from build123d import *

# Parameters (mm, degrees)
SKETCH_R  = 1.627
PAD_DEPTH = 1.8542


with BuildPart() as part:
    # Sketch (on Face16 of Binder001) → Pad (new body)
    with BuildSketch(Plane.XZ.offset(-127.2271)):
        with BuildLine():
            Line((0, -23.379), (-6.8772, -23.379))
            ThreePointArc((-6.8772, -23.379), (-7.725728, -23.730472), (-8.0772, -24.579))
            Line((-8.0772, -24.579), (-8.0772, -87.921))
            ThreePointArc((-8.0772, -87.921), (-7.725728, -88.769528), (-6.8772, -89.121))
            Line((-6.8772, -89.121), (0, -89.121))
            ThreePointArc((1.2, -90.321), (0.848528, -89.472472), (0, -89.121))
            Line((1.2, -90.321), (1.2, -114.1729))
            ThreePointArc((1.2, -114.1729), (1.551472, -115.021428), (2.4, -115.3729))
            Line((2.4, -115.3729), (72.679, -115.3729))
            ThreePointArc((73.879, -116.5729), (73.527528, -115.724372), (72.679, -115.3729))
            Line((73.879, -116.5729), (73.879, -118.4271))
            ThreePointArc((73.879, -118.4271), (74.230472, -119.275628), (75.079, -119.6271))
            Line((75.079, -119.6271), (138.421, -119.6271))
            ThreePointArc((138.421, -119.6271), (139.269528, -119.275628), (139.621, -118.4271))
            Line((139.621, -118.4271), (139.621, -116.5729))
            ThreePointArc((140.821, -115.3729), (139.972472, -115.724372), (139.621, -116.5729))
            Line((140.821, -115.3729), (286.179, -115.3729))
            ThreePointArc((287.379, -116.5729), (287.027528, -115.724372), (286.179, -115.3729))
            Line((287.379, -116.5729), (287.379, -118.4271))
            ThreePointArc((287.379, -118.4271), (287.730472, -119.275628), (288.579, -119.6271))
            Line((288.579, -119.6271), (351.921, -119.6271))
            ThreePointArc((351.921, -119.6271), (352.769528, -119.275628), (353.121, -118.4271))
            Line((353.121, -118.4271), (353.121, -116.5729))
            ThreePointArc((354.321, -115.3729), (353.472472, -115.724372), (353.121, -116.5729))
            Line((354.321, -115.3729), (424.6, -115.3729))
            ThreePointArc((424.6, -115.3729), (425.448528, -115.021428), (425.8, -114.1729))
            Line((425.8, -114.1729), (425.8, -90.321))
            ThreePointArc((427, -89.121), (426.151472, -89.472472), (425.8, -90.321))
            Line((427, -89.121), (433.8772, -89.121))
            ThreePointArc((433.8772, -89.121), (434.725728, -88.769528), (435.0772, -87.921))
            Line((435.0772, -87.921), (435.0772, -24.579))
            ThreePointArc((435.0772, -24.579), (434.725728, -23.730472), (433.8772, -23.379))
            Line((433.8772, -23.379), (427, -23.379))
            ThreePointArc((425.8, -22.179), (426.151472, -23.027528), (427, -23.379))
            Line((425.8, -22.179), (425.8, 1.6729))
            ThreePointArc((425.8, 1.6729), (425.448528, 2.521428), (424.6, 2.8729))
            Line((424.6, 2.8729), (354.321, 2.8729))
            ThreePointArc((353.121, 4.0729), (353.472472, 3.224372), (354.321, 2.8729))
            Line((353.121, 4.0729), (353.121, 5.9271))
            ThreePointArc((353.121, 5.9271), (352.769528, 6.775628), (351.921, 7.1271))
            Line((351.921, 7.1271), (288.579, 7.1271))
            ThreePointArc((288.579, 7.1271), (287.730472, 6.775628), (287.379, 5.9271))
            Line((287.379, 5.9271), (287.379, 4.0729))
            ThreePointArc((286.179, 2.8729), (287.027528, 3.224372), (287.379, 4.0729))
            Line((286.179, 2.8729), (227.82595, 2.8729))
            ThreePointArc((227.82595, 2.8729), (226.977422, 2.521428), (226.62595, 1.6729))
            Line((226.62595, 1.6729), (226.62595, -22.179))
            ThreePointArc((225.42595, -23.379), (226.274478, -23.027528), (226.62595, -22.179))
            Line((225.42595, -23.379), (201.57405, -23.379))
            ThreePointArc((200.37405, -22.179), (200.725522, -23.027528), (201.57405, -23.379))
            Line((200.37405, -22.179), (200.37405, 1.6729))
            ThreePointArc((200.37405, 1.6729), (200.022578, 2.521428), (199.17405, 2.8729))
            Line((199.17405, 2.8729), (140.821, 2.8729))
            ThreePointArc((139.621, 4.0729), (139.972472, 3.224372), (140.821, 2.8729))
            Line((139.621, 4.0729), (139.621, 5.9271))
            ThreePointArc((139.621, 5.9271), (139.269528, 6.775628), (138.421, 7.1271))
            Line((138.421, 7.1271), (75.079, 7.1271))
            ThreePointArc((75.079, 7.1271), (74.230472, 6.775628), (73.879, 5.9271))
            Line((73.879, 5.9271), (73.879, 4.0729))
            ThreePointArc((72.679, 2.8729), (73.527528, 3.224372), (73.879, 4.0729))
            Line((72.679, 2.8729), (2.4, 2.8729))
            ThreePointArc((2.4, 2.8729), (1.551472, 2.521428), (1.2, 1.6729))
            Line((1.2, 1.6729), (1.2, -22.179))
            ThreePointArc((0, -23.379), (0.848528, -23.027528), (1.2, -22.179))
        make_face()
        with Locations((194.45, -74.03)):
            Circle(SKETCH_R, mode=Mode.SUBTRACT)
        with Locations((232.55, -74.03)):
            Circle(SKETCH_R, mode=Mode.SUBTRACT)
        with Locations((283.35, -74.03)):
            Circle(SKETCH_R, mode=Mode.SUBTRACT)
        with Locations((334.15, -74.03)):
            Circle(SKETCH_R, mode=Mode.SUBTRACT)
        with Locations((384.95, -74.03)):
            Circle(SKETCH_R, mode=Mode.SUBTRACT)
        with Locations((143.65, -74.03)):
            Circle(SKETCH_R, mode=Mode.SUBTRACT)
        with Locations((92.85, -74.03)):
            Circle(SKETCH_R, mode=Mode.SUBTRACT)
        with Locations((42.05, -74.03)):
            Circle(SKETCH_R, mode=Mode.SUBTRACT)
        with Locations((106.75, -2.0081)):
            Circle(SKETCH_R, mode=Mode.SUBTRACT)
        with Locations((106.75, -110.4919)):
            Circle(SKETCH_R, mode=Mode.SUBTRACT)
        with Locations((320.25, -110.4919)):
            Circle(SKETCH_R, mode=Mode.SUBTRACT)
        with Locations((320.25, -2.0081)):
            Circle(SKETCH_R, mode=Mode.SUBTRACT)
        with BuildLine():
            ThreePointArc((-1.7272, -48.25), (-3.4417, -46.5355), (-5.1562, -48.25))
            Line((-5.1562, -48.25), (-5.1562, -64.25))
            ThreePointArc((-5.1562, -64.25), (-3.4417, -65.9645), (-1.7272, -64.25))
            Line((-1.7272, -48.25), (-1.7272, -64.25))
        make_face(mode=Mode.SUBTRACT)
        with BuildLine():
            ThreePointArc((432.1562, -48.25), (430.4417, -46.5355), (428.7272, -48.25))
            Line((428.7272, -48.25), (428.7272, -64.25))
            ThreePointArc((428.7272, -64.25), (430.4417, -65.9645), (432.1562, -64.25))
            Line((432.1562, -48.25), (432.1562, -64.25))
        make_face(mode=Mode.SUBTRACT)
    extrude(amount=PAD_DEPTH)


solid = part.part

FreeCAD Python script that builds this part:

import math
import FreeCAD as App
import Part
import Sketcher

V = App.Vector
Q = App.Units.Quantity

doc = App.newDocument("Part")
body = doc.addObject("PartDesign::Body", "Body")

# Sketch on XZ plane
sketch1 = body.newObject("Sketcher::SketchObject", "Sketch")
sketch1.AttachmentSupport = (doc.getObject("XZ_Plane"), [""])
sketch1.MapMode = "FlatFace"
sketch1.AttachmentOffset = App.Placement(V(0, 0, -127.2271), App.Rotation())
sketch1.addGeometry([
    Part.LineSegment(V(0, -23.379, 0), V(-6.8772, -23.379, 0)),  # 0
    Part.ArcOfCircle(Part.Circle(V(-6.8772, -24.579, 0), V(0, 0, 1), 1.2), math.radians(90.000022), math.radians(179.999978)),  # 1
    Part.LineSegment(V(-8.0772, -24.579, 0), V(-8.0772, -87.921, 0)),  # 2
    Part.ArcOfCircle(Part.Circle(V(-6.8772, -87.921, 0), V(0, 0, 1), 1.2), math.radians(-179.999978), math.radians(-90.000022)),  # 3
    Part.LineSegment(V(-6.8772, -89.121, 0), V(0, -89.121, 0)),  # 4
    Part.ArcOfCircle(Part.Circle(V(0, -90.321, 0), V(0, 0, 1), 1.2), math.radians(0.000022), math.radians(89.999978)),  # 5
    Part.LineSegment(V(1.2, -90.321, 0), V(1.2, -114.1729, 0)),  # 6
    Part.ArcOfCircle(Part.Circle(V(2.4, -114.1729, 0), V(0, 0, 1), 1.2), math.radians(-179.999978), math.radians(-90.000022)),  # 7
    Part.LineSegment(V(2.4, -115.3729, 0), V(72.679, -115.3729, 0)),  # 8
    Part.ArcOfCircle(Part.Circle(V(72.679, -116.5729, 0), V(0, 0, 1), 1.2), math.radians(0.000022), math.radians(89.999978)),  # 9
    Part.LineSegment(V(73.879, -116.5729, 0), V(73.879, -118.4271, 0)),  # 10
    Part.ArcOfCircle(Part.Circle(V(75.079, -118.4271, 0), V(0, 0, 1), 1.2), math.radians(-179.999978), math.radians(-90.000022)),  # 11
    Part.LineSegment(V(75.079, -119.6271, 0), V(138.421, -119.6271, 0)),  # 12
    Part.ArcOfCircle(Part.Circle(V(138.421, -118.4271, 0), V(0, 0, 1), 1.2), math.radians(-89.999978), math.radians(-0.000022)),  # 13
    Part.LineSegment(V(139.621, -118.4271, 0), V(139.621, -116.5729, 0)),  # 14
    Part.ArcOfCircle(Part.Circle(V(140.821, -116.5729, 0), V(0, 0, 1), 1.2), math.radians(90.000022), math.radians(179.999978)),  # 15
    Part.LineSegment(V(140.821, -115.3729, 0), V(286.179, -115.3729, 0)),  # 16
    Part.ArcOfCircle(Part.Circle(V(286.179, -116.5729, 0), V(0, 0, 1), 1.2), math.radians(0.000022), math.radians(89.999978)),  # 17
    Part.LineSegment(V(287.379, -116.5729, 0), V(287.379, -118.4271, 0)),  # 18
    Part.ArcOfCircle(Part.Circle(V(288.579, -118.4271, 0), V(0, 0, 1), 1.2), math.radians(-179.999978), math.radians(-90.000022)),  # 19
    Part.LineSegment(V(288.579, -119.6271, 0), V(351.921, -119.6271, 0)),  # 20
    Part.ArcOfCircle(Part.Circle(V(351.921, -118.4271, 0), V(0, 0, 1), 1.2), math.radians(-89.999978), math.radians(-0.000022)),  # 21
    Part.LineSegment(V(353.121, -118.4271, 0), V(353.121, -116.5729, 0)),  # 22
    Part.ArcOfCircle(Part.Circle(V(354.321, -116.5729, 0), V(0, 0, 1), 1.2), math.radians(90.000022), math.radians(179.999978)),  # 23
    Part.LineSegment(V(354.321, -115.3729, 0), V(424.6, -115.3729, 0)),  # 24
    Part.ArcOfCircle(Part.Circle(V(424.6, -114.1729, 0), V(0, 0, 1), 1.2), math.radians(-89.999978), math.radians(-0.000022)),  # 25
    Part.LineSegment(V(425.8, -114.1729, 0), V(425.8, -90.321, 0)),  # 26
    Part.ArcOfCircle(Part.Circle(V(427, -90.321, 0), V(0, 0, 1), 1.2), math.radians(90.000022), math.radians(179.999978)),  # 27
    Part.LineSegment(V(427, -89.121, 0), V(433.8772, -89.121, 0)),  # 28
    Part.ArcOfCircle(Part.Circle(V(433.8772, -87.921, 0), V(0, 0, 1), 1.2), math.radians(-89.999978), math.radians(-0.000022)),  # 29
    Part.LineSegment(V(435.0772, -87.921, 0), V(435.0772, -24.579, 0)),  # 30
    Part.ArcOfCircle(Part.Circle(V(433.8772, -24.579, 0), V(0, 0, 1), 1.2), math.radians(0.000022), math.radians(89.999978)),  # 31
    Part.LineSegment(V(433.8772, -23.379, 0), V(427, -23.379, 0)),  # 32
    Part.ArcOfCircle(Part.Circle(V(427, -22.179, 0), V(0, 0, 1), 1.2), math.radians(-179.999978), math.radians(-90.000022)),  # 33
    Part.LineSegment(V(425.8, -22.179, 0), V(425.8, 1.6729, 0)),  # 34
    Part.ArcOfCircle(Part.Circle(V(424.6, 1.6729, 0), V(0, 0, 1), 1.2), math.radians(0.000022), math.radians(89.999978)),  # 35
    Part.LineSegment(V(424.6, 2.8729, 0), V(354.321, 2.8729, 0)),  # 36
    Part.ArcOfCircle(Part.Circle(V(354.321, 4.0729, 0), V(0, 0, 1), 1.2), math.radians(-179.999978), math.radians(-90.000022)),  # 37
    Part.LineSegment(V(353.121, 4.0729, 0), V(353.121, 5.9271, 0)),  # 38
    Part.ArcOfCircle(Part.Circle(V(351.921, 5.9271, 0), V(0, 0, 1), 1.2), math.radians(0.000022), math.radians(89.999978)),  # 39
    Part.LineSegment(V(351.921, 7.1271, 0), V(288.579, 7.1271, 0)),  # 40
    Part.ArcOfCircle(Part.Circle(V(288.579, 5.9271, 0), V(0, 0, 1), 1.2), math.radians(90.000022), math.radians(179.999978)),  # 41
    Part.LineSegment(V(287.379, 5.9271, 0), V(287.379, 4.0729, 0)),  # 42
    Part.ArcOfCircle(Part.Circle(V(286.179, 4.0729, 0), V(0, 0, 1), 1.2), math.radians(-89.999978), math.radians(-0.000022)),  # 43
    Part.LineSegment(V(286.179, 2.8729, 0), V(227.82595, 2.8729, 0)),  # 44
    Part.ArcOfCircle(Part.Circle(V(227.82595, 1.6729, 0), V(0, 0, 1), 1.2), math.radians(90.000022), math.radians(179.999978)),  # 45
    Part.LineSegment(V(226.62595, 1.6729, 0), V(226.62595, -22.179, 0)),  # 46
    Part.ArcOfCircle(Part.Circle(V(225.42595, -22.179, 0), V(0, 0, 1), 1.2), math.radians(-89.999978), math.radians(-0.000022)),  # 47
    Part.LineSegment(V(225.42595, -23.379, 0), V(201.57405, -23.379, 0)),  # 48
    Part.ArcOfCircle(Part.Circle(V(201.57405, -22.179, 0), V(0, 0, 1), 1.2), math.radians(-179.999978), math.radians(-90.000022)),  # 49
    Part.LineSegment(V(200.37405, -22.179, 0), V(200.37405, 1.6729, 0)),  # 50
    Part.ArcOfCircle(Part.Circle(V(199.17405, 1.6729, 0), V(0, 0, 1), 1.2), math.radians(0.000022), math.radians(89.999978)),  # 51
    Part.LineSegment(V(199.17405, 2.8729, 0), V(140.821, 2.8729, 0)),  # 52
    Part.ArcOfCircle(Part.Circle(V(140.821, 4.0729, 0), V(0, 0, 1), 1.2), math.radians(-179.999978), math.radians(-90.000022)),  # 53
    Part.LineSegment(V(139.621, 4.0729, 0), V(139.621, 5.9271, 0)),  # 54
    Part.ArcOfCircle(Part.Circle(V(138.421, 5.9271, 0), V(0, 0, 1), 1.2), math.radians(0.000022), math.radians(89.999978)),  # 55
    Part.LineSegment(V(138.421, 7.1271, 0), V(75.079, 7.1271, 0)),  # 56
    Part.ArcOfCircle(Part.Circle(V(75.079, 5.9271, 0), V(0, 0, 1), 1.2), math.radians(90.000022), math.radians(179.999978)),  # 57
    Part.LineSegment(V(73.879, 5.9271, 0), V(73.879, 4.0729, 0)),  # 58
    Part.ArcOfCircle(Part.Circle(V(72.679, 4.0729, 0), V(0, 0, 1), 1.2), math.radians(-89.999978), math.radians(-0.000022)),  # 59
    Part.LineSegment(V(72.679, 2.8729, 0), V(2.4, 2.8729, 0)),  # 60
    Part.ArcOfCircle(Part.Circle(V(2.4, 1.6729, 0), V(0, 0, 1), 1.2), math.radians(90.000022), math.radians(179.999978)),  # 61
    Part.LineSegment(V(1.2, 1.6729, 0), V(1.2, -22.179, 0)),  # 62
    Part.ArcOfCircle(Part.Circle(V(0, -22.179, 0), V(0, 0, 1), 1.2), math.radians(-89.999978), math.radians(-0.000022)),  # 63
    Part.Circle(V(106.75, -110.4919, 0), V(0, 0, 1), 1.627),  # 64
    Part.Circle(V(42.05, -74.03, 0), V(0, 0, 1), 1.627),  # 65
    Part.Circle(V(92.85, -74.03, 0), V(0, 0, 1), 1.627),  # 66
    Part.Circle(V(143.65, -74.03, 0), V(0, 0, 1), 1.627),  # 67
    Part.Circle(V(194.45, -74.03, 0), V(0, 0, 1), 1.627),  # 68
    Part.Circle(V(320.25, -110.4919, 0), V(0, 0, 1), 1.627),  # 69
    Part.Circle(V(232.55, -74.03, 0), V(0, 0, 1), 1.627),  # 70
    Part.Circle(V(283.35, -74.03, 0), V(0, 0, 1), 1.627),  # 71
    Part.Circle(V(334.15, -74.03, 0), V(0, 0, 1), 1.627),  # 72
    Part.Circle(V(384.95, -74.03, 0), V(0, 0, 1), 1.627),  # 73
    Part.ArcOfCircle(Part.Circle(V(-3.4417, -48.25, 0), V(0, 0, 1), 1.7145), math.radians(0), math.radians(180)),  # 74
    Part.LineSegment(V(-1.7272, -48.25, 0), V(-1.7272, -64.25, 0)),  # 75
    Part.ArcOfCircle(Part.Circle(V(-3.4417, -64.25, 0), V(0, 0, 1), 1.7145), math.radians(180), math.radians(360)),  # 76
    Part.LineSegment(V(-5.1562, -64.25, 0), V(-5.1562, -48.25, 0)),  # 77
    Part.Circle(V(106.75, -2.0081, 0), V(0, 0, 1), 1.627),  # 78
    Part.ArcOfCircle(Part.Circle(V(430.4417, -48.25, 0), V(0, 0, 1), 1.7145), math.radians(0), math.radians(180)),  # 79
    Part.LineSegment(V(432.1562, -48.25, 0), V(432.1562, -64.25, 0)),  # 80
    Part.ArcOfCircle(Part.Circle(V(430.4417, -64.25, 0), V(0, 0, 1), 1.7145), math.radians(180), math.radians(360)),  # 81
    Part.LineSegment(V(428.7272, -64.25, 0), V(428.7272, -48.25, 0)),  # 82
    Part.Circle(V(320.25, -2.0081, 0), V(0, 0, 1), 1.627),  # 83
], False)
sketch1.addConstraint([
    Sketcher.Constraint("Tangent", 0, 2, 1, 1),
    Sketcher.Constraint("Tangent", 1, 2, 2, 1),
    Sketcher.Constraint("Tangent", 2, 2, 3, 1),
    Sketcher.Constraint("Tangent", 3, 2, 4, 1),
    Sketcher.Constraint("Tangent", 4, 2, 5, 2),
    Sketcher.Constraint("Tangent", 5, 1, 6, 1),
    Sketcher.Constraint("Tangent", 6, 2, 7, 1),
    Sketcher.Constraint("Tangent", 7, 2, 8, 1),
    Sketcher.Constraint("Tangent", 8, 2, 9, 2),
    Sketcher.Constraint("Tangent", 9, 1, 10, 1),
    Sketcher.Constraint("Tangent", 10, 2, 11, 1),
    Sketcher.Constraint("Tangent", 11, 2, 12, 1),
    Sketcher.Constraint("Tangent", 12, 2, 13, 1),
    Sketcher.Constraint("Tangent", 13, 2, 14, 1),
    Sketcher.Constraint("Tangent", 14, 2, 15, 2),
    Sketcher.Constraint("Tangent", 15, 1, 16, 1),
    Sketcher.Constraint("Tangent", 16, 2, 17, 2),
    Sketcher.Constraint("Tangent", 17, 1, 18, 1),
    Sketcher.Constraint("Tangent", 18, 2, 19, 1),
    Sketcher.Constraint("Tangent", 19, 2, 20, 1),
    Sketcher.Constraint("Tangent", 20, 2, 21, 1),
    Sketcher.Constraint("Tangent", 21, 2, 22, 1),
    Sketcher.Constraint("Tangent", 22, 2, 23, 2),
    Sketcher.Constraint("Tangent", 23, 1, 24, 1),
    Sketcher.Constraint("Tangent", 24, 2, 25, 1),
    Sketcher.Constraint("Tangent", 25, 2, 26, 1),
    Sketcher.Constraint("Tangent", 26, 2, 27, 2),
    Sketcher.Constraint("Tangent", 27, 1, 28, 1),
    Sketcher.Constraint("Tangent", 28, 2, 29, 1),
    Sketcher.Constraint("Tangent", 29, 2, 30, 1),
    Sketcher.Constraint("Tangent", 30, 2, 31, 1),
    Sketcher.Constraint("Tangent", 31, 2, 32, 1),
    Sketcher.Constraint("Tangent", 32, 2, 33, 2),
    Sketcher.Constraint("Tangent", 33, 1, 34, 1),
    Sketcher.Constraint("Tangent", 34, 2, 35, 1),
    Sketcher.Constraint("Tangent", 35, 2, 36, 1),
    Sketcher.Constraint("Tangent", 36, 2, 37, 2),
    Sketcher.Constraint("Tangent", 37, 1, 38, 1),
    Sketcher.Constraint("Tangent", 38, 2, 39, 1),
    Sketcher.Constraint("Tangent", 39, 2, 40, 1),
    Sketcher.Constraint("Tangent", 40, 2, 41, 1),
    Sketcher.Constraint("Tangent", 41, 2, 42, 1),
    Sketcher.Constraint("Tangent", 42, 2, 43, 2),
    Sketcher.Constraint("Tangent", 43, 1, 44, 1),
    Sketcher.Constraint("Tangent", 44, 2, 45, 1),
    Sketcher.Constraint("Tangent", 45, 2, 46, 1),
    Sketcher.Constraint("Tangent", 46, 2, 47, 2),
    Sketcher.Constraint("Tangent", 47, 1, 48, 1),
    Sketcher.Constraint("Tangent", 48, 2, 49, 2),
    Sketcher.Constraint("Tangent", 49, 1, 50, 1),
    Sketcher.Constraint("Tangent", 50, 2, 51, 1),
    Sketcher.Constraint("Tangent", 51, 2, 52, 1),
    Sketcher.Constraint("Tangent", 52, 2, 53, 2),
    Sketcher.Constraint("Tangent", 53, 1, 54, 1),
    Sketcher.Constraint("Tangent", 54, 2, 55, 1),
    Sketcher.Constraint("Tangent", 55, 2, 56, 1),
    Sketcher.Constraint("Tangent", 56, 2, 57, 1),
    Sketcher.Constraint("Tangent", 57, 2, 58, 1),
    Sketcher.Constraint("Tangent", 58, 2, 59, 2),
    Sketcher.Constraint("Tangent", 59, 1, 60, 1),
    Sketcher.Constraint("Tangent", 60, 2, 61, 1),
    Sketcher.Constraint("Tangent", 61, 2, 62, 1),
    Sketcher.Constraint("Tangent", 62, 2, 63, 2),
    Sketcher.Constraint("Tangent", 63, 1, 0, 1),
    Sketcher.Constraint("Tangent", 74, 1, 75, 1),
    Sketcher.Constraint("Tangent", 75, 2, 76, 2),
    Sketcher.Constraint("Tangent", 76, 1, 77, 1),
    Sketcher.Constraint("Tangent", 77, 2, 74, 2),
    Sketcher.Constraint("Tangent", 79, 1, 80, 1),
    Sketcher.Constraint("Tangent", 80, 2, 81, 2),
    Sketcher.Constraint("Tangent", 81, 1, 82, 1),
    Sketcher.Constraint("Tangent", 82, 2, 79, 2),
    Sketcher.Constraint("Horizontal", 0),
    Sketcher.Constraint("Vertical", 2),
    Sketcher.Constraint("Horizontal", 4),
    Sketcher.Constraint("Vertical", 6),
    Sketcher.Constraint("Horizontal", 8),
    Sketcher.Constraint("Vertical", 10),
    Sketcher.Constraint("Horizontal", 12),
    Sketcher.Constraint("Vertical", 14),
    Sketcher.Constraint("Horizontal", 16),
    Sketcher.Constraint("Vertical", 18),
    Sketcher.Constraint("Horizontal", 20),
    Sketcher.Constraint("Vertical", 22),
    Sketcher.Constraint("Horizontal", 24),
    Sketcher.Constraint("Vertical", 26),
    Sketcher.Constraint("Horizontal", 28),
    Sketcher.Constraint("Vertical", 30),
    Sketcher.Constraint("Horizontal", 32),
    Sketcher.Constraint("Vertical", 34),
    Sketcher.Constraint("Horizontal", 36),
    Sketcher.Constraint("Vertical", 38),
    Sketcher.Constraint("Horizontal", 40),
    Sketcher.Constraint("Vertical", 42),
    Sketcher.Constraint("Horizontal", 44),
    Sketcher.Constraint("Vertical", 46),
    Sketcher.Constraint("Horizontal", 48),
    Sketcher.Constraint("Vertical", 50),
    Sketcher.Constraint("Horizontal", 52),
    Sketcher.Constraint("Vertical", 54),
    Sketcher.Constraint("Horizontal", 56),
    Sketcher.Constraint("Vertical", 58),
    Sketcher.Constraint("Horizontal", 60),
    Sketcher.Constraint("Vertical", 62),
    Sketcher.Constraint("Vertical", 75),
    Sketcher.Constraint("Vertical", 77),
    Sketcher.Constraint("Vertical", 80),
    Sketcher.Constraint("Vertical", 82),
    Sketcher.Constraint("Equal", 1, 3),
    Sketcher.Constraint("Equal", 3, 5),
    Sketcher.Constraint("Equal", 5, 7),
    Sketcher.Constraint("Equal", 7, 9),
    Sketcher.Constraint("Equal", 9, 11),
    Sketcher.Constraint("Equal", 11, 13),
    Sketcher.Constraint("Equal", 13, 15),
    Sketcher.Constraint("Equal", 15, 17),
    Sketcher.Constraint("Equal", 17, 19),
    Sketcher.Constraint("Equal", 19, 21),
    Sketcher.Constraint("Equal", 21, 23),
    Sketcher.Constraint("Equal", 23, 25),
    Sketcher.Constraint("Equal", 25, 27),
    Sketcher.Constraint("Equal", 27, 29),
    Sketcher.Constraint("Equal", 29, 31),
    Sketcher.Constraint("Equal", 31, 33),
    Sketcher.Constraint("Equal", 33, 35),
    Sketcher.Constraint("Equal", 35, 37),
    Sketcher.Constraint("Equal", 37, 39),
    Sketcher.Constraint("Equal", 39, 41),
    Sketcher.Constraint("Equal", 41, 43),
    Sketcher.Constraint("Equal", 43, 45),
    Sketcher.Constraint("Equal", 45, 47),
    Sketcher.Constraint("Equal", 47, 49),
    Sketcher.Constraint("Equal", 49, 51),
    Sketcher.Constraint("Equal", 51, 53),
    Sketcher.Constraint("Equal", 53, 55),
    Sketcher.Constraint("Equal", 55, 57),
    Sketcher.Constraint("Equal", 57, 59),
    Sketcher.Constraint("Equal", 59, 61),
    Sketcher.Constraint("Equal", 61, 63),
    Sketcher.Constraint("Equal", 64, 65),
    Sketcher.Constraint("Equal", 65, 66),
    Sketcher.Constraint("Equal", 66, 67),
    Sketcher.Constraint("Equal", 67, 68),
    Sketcher.Constraint("Equal", 68, 69),
    Sketcher.Constraint("Equal", 69, 70),
    Sketcher.Constraint("Equal", 70, 71),
    Sketcher.Constraint("Equal", 71, 72),
    Sketcher.Constraint("Equal", 72, 73),
    Sketcher.Constraint("Equal", 73, 78),
    Sketcher.Constraint("Equal", 76, 79),
    Sketcher.Constraint("Equal", 78, 83),
    Sketcher.Constraint("PointOnObject", 5, 3, -2),
    Sketcher.Constraint("PointOnObject", 63, 3, -2),
    Sketcher.Constraint("Horizontal", 9, 3, 15, 3),
    Sketcher.Constraint("Horizontal", 13, 3, 19, 3),
    Sketcher.Constraint("Horizontal", 17, 3, 23, 3),
    Sketcher.Constraint("Horizontal", 5, 3, 27, 3),
    Sketcher.Constraint("Horizontal", 1, 3, 31, 3),
    Sketcher.Constraint("Horizontal", 37, 3, 43, 3),
    Sketcher.Constraint("Horizontal", 33, 3, 47, 3),
    Sketcher.Constraint("Horizontal", 45, 3, 51, 3),
    Sketcher.Constraint("Horizontal", 41, 3, 55, 3),
    Sketcher.Constraint("Horizontal", 53, 3, 59, 3),
    Sketcher.Constraint("Horizontal", 65, 3, 66, 3),
    Sketcher.Constraint("Horizontal", 66, 3, 67, 3),
    Sketcher.Constraint("Horizontal", 67, 3, 68, 3),
    Sketcher.Constraint("Horizontal", 64, 3, 69, 3),
    Sketcher.Constraint("Horizontal", 68, 3, 70, 3),
    Sketcher.Constraint("Horizontal", 70, 3, 71, 3),
    Sketcher.Constraint("Horizontal", 71, 3, 72, 3),
    Sketcher.Constraint("Horizontal", 72, 3, 73, 3),
    Sketcher.Constraint("Horizontal", 74, 3, 79, 3),
    Sketcher.Constraint("Horizontal", 76, 3, 81, 3),
    Sketcher.Constraint("Horizontal", 78, 3, 83, 3),
    Sketcher.Constraint("Vertical", 27, 3, 33, 3),
    Sketcher.Constraint("Vertical", 23, 3, 37, 3),
    Sketcher.Constraint("Vertical", 19, 3, 41, 3),
    Sketcher.Constraint("Vertical", 15, 3, 53, 3),
    Sketcher.Constraint("Vertical", 11, 3, 57, 3),
    Sketcher.Constraint("Vertical", 64, 3, 78, 3),
    Sketcher.Constraint("Vertical", 69, 3, 83, 3),
    Sketcher.Constraint("Equal", 12, 20),
    Sketcher.Constraint("Equal", 8, 24),
    Sketcher.Constraint("Equal", 4, 28),
    Sketcher.Constraint("Equal", 44, 52),
    Sketcher.Constraint("Equal", 56, 2),
    Sketcher.Constraint("Equal", 48, 6),
    Sketcher.Constraint("Equal", 26, 34),
    Sketcher.Constraint("Equal", 22, 38),
    Sketcher.Constraint("Radius", 1, Q("1.2 mm")),
    Sketcher.Constraint("DistanceY", 75, 2, 75, 1, Q("16 mm")),
    Sketcher.Constraint("Diameter", 64, Q("3.254 mm")),
    Sketcher.Constraint("DistanceX", -1, 1, 27, 3, Q("427 mm")),
    Sketcher.Constraint("Radius", 74, Q("1.7145 mm")),
    Sketcher.Constraint("DistanceX", 8, 1, 8, 2, Q("70.279 mm")),
    Sketcher.Constraint("DistanceX", 12, 1, 12, 2, Q("63.342 mm")),
    Sketcher.Constraint("DistanceX", -1, 1, 64, 3, Q("106.75 mm")),
    Sketcher.Constraint("DistanceX", -1, 1, 65, 3, Q("42.05 mm")),
    Sketcher.Constraint("DistanceY", 65, 3, -1, 1, Q("74.03 mm")),
    Sketcher.Constraint("DistanceX", -1, 1, 66, 3, Q("92.85 mm")),
    Sketcher.Constraint("DistanceX", -1, 1, 67, 3, Q("143.65 mm")),
    Sketcher.Constraint("DistanceX", -1, 1, 68, 3, Q("194.45 mm")),
    Sketcher.Constraint("DistanceX", -1, 1, 69, 3, Q("320.25 mm")),
    Sketcher.Constraint("DistanceX", -1, 1, 70, 3, Q("232.55 mm")),
    Sketcher.Constraint("DistanceX", -1, 1, 71, 3, Q("283.35 mm")),
    Sketcher.Constraint("DistanceX", -1, 1, 72, 3, Q("334.15 mm")),
    Sketcher.Constraint("DistanceX", -1, 1, 73, 3, Q("384.95 mm")),
    Sketcher.Constraint("DistanceY", 74, 3, -1, 1, Q("48.25 mm")),
    Sketcher.Constraint("DistanceX", 0, 2, 0, 1, Q("6.8772 mm")),
    Sketcher.Constraint("DistanceX", 48, 2, 48, 1, Q("23.8519 mm")),
    Sketcher.Constraint("DistanceY", 10, 2, 10, 1, Q("1.8542 mm")),
    Sketcher.Constraint("DistanceY", 1, 3, -1, 1, Q("24.579 mm")),
    Sketcher.Constraint("DistanceY", 64, 3, -1, 1, Q("110.4919 mm")),
    Sketcher.Constraint("DistanceX", 74, 3, -1, 1, Q("3.4417 mm")),
    Sketcher.Constraint("DistanceY", 78, 3, -1, 1, Q("2.0081 mm")),
    Sketcher.Constraint("DistanceX", -1, 1, 79, 3, Q("430.4417 mm")),
])
pad1 = body.newObject("PartDesign::Pad", "Pad")
pad1.Profile = sketch1
pad1.Length = 1.8542

doc.recompute()
